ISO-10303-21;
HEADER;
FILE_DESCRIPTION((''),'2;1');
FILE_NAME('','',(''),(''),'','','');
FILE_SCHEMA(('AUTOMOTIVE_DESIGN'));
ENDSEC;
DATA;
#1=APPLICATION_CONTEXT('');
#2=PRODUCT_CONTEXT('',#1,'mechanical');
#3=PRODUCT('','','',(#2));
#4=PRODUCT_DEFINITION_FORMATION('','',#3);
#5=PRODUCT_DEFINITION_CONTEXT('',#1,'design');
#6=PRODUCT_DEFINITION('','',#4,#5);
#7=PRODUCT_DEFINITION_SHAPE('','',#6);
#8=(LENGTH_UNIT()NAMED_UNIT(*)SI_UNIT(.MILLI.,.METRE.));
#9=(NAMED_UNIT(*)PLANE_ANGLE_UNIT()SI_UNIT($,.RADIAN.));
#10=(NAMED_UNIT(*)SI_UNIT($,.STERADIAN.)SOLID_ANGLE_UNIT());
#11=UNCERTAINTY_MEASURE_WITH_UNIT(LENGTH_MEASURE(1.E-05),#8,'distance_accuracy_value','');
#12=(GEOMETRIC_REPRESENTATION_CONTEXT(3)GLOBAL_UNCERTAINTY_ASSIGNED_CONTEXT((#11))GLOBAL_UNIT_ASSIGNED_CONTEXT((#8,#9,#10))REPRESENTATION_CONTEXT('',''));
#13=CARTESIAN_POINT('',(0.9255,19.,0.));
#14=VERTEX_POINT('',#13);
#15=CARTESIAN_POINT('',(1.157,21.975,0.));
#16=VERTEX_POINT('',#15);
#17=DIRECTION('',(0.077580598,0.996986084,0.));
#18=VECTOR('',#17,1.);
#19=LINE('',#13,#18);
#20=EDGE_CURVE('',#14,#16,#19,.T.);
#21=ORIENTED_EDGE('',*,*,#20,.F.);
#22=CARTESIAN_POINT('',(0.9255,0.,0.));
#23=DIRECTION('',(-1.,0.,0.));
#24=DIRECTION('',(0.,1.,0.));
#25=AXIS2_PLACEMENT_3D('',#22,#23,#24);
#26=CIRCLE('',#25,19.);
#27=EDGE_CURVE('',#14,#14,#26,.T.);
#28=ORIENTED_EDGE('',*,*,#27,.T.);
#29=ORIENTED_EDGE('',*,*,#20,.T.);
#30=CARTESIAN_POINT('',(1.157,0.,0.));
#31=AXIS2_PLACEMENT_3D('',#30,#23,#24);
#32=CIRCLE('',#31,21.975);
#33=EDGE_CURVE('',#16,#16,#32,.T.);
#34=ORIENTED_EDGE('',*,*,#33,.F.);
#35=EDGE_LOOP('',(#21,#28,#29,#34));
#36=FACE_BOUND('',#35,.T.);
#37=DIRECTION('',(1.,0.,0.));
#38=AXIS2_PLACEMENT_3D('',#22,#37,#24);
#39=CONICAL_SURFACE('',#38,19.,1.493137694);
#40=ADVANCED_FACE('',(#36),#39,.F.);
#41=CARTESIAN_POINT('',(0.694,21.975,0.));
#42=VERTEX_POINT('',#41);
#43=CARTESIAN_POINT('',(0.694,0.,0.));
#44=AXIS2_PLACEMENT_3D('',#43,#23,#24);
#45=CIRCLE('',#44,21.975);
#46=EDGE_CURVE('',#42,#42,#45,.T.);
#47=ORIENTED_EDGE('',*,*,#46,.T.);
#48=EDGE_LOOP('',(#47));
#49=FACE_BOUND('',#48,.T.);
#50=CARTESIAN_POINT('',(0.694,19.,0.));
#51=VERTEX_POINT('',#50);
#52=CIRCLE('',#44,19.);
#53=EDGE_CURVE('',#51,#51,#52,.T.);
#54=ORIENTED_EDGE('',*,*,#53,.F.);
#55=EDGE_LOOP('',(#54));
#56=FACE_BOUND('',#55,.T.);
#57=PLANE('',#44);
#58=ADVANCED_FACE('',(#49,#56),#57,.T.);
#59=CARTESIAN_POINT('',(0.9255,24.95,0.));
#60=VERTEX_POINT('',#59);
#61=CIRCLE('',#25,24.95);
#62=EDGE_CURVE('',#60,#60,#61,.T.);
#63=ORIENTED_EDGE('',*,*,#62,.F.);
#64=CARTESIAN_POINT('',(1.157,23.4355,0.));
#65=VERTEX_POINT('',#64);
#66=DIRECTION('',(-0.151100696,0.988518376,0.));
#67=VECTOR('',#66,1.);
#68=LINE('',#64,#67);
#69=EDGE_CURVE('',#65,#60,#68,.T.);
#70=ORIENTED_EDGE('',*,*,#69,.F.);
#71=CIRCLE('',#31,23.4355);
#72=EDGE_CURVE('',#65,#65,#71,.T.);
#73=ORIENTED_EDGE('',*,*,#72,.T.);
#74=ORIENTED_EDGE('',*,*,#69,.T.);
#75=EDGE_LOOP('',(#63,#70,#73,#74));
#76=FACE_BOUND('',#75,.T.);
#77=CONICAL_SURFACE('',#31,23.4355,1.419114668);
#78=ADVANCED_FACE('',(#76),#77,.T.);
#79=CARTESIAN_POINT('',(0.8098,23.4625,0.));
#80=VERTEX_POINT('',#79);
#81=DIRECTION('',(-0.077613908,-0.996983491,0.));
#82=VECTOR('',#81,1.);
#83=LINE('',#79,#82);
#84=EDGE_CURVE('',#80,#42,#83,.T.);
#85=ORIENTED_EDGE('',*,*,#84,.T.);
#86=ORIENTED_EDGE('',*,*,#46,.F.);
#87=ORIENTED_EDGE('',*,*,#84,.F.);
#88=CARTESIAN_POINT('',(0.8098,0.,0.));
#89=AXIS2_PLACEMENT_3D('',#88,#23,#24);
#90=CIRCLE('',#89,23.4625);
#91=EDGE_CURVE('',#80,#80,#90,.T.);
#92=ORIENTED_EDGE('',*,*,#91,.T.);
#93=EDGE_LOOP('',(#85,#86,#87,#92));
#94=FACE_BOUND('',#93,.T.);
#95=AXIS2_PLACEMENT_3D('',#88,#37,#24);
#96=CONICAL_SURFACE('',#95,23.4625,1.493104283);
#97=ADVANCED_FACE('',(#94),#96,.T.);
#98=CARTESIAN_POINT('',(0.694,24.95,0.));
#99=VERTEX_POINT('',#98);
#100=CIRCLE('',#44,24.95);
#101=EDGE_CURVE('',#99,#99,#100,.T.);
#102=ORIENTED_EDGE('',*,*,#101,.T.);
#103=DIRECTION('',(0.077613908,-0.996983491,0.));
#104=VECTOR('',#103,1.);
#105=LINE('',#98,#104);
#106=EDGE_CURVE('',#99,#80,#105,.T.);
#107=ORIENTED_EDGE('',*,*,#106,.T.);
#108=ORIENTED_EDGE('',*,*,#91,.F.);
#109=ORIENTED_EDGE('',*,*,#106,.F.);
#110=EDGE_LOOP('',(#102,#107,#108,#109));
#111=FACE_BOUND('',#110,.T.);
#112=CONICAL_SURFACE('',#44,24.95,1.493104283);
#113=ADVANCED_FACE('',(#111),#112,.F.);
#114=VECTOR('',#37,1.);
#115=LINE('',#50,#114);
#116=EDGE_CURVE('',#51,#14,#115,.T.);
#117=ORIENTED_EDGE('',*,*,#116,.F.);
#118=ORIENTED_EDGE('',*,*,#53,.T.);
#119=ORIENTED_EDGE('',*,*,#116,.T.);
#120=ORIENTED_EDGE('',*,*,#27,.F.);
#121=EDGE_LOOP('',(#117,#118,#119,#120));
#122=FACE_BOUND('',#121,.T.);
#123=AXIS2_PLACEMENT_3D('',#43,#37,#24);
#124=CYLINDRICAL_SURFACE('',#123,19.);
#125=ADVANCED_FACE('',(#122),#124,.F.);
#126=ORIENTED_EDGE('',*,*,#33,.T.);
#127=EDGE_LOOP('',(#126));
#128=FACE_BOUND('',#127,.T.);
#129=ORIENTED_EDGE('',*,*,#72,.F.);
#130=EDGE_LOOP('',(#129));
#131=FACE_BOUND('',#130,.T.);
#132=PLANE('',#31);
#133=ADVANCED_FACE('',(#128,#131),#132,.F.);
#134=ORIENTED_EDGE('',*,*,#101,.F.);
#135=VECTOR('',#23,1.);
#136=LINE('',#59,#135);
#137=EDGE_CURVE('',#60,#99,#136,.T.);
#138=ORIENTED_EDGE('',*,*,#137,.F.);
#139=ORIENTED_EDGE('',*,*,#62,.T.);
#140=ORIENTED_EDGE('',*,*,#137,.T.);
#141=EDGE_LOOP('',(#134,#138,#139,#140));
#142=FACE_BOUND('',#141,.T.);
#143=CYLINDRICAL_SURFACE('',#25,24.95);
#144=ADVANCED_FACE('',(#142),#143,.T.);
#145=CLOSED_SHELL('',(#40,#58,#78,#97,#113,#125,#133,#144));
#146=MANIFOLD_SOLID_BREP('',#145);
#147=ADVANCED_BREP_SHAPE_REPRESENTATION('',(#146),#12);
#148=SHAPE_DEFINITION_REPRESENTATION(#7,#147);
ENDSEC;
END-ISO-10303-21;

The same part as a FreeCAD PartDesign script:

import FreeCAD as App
import Part
import Sketcher

V = App.Vector
Q = App.Units.Quantity

doc = App.newDocument("Part")
body = doc.addObject("PartDesign::Body", "Body")

# Sketch on XY plane
sketch1 = body.newObject("Sketcher::SketchObject", "Sketch")
sketch1.AttachmentSupport = (doc.getObject("XY_Plane"), [""])
sketch1.MapMode = "FlatFace"
sketch1.addGeometry(Part.LineSegment(V(0.694, 21.975, 0), V(0.694, 19, 0)), False)
sketch1.addGeometry(Part.LineSegment(V(0.694, 19, 0), V(0.9255, 19, 0)), False)
sketch1.addGeometry(Part.LineSegment(V(0.9255, 19, 0), V(1.157, 21.975, 0)), False)
sketch1.addGeometry(Part.LineSegment(V(1.157, 21.975, 0), V(1.157, 23.4355, 0)), False)
sketch1.addGeometry(Part.LineSegment(V(1.157, 23.4355, 0), V(0.9255, 24.95, 0)), False)
sketch1.addGeometry(Part.LineSegment(V(0.9255, 24.95, 0), V(0.694, 24.95, 0)), False)
sketch1.addGeometry(Part.LineSegment(V(0.694, 24.95, 0), V(0.8098, 23.4625, 0)), False)
sketch1.addGeometry(Part.LineSegment(V(0.8098, 23.4625, 0), V(0.694, 21.975, 0)), False)
sketch1.addConstraint(Sketcher.Constraint("Coincident", 0, 2, 1, 1))
sketch1.addConstraint(Sketcher.Constraint("Coincident", 1, 2, 2, 1))
sketch1.addConstraint(Sketcher.Constraint("Coincident", 2, 2, 3, 1))
sketch1.addConstraint(Sketcher.Constraint("Coincident", 3, 2, 4, 1))
sketch1.addConstraint(Sketcher.Constraint("Coincident", 4, 2, 5, 1))
sketch1.addConstraint(Sketcher.Constraint("Coincident", 5, 2, 6, 1))
sketch1.addConstraint(Sketcher.Constraint("Coincident", 6, 2, 7, 1))
sketch1.addConstraint(Sketcher.Constraint("Coincident", 7, 2, 0, 1))
sketch1.addConstraint(Sketcher.Constraint("Vertical", 0))
sketch1.addConstraint(Sketcher.Constraint("Horizontal", 1))
sketch1.addConstraint(Sketcher.Constraint("Vertical", 3))
sketch1.addConstraint(Sketcher.Constraint("Horizontal", 5))
sketch1.addConstraint(Sketcher.Constraint("Parallel", 2, 7))
sketch1.addConstraint(Sketcher.Constraint("Horizontal", 2, 2, 7, 2))
sketch1.addConstraint(Sketcher.Constraint("Vertical", 1, 2, 4, 2))
sketch1.addConstraint(Sketcher.Constraint("Vertical", 0, 2, 5, 2))
sketch1.addConstraint(Sketcher.Constraint("Equal", 6, 7))
sketch1.addConstraint(Sketcher.Constraint("DistanceY", -1, 1, 0, 2, 19.0))
sketch1.addConstraint(Sketcher.Constraint("Angle", 2, Q("85.5505 deg")))
sketch1.addConstraint(Sketcher.Constraint("Angle", 4, Q("98.6907 deg")))
sketch1.addConstraint(Sketcher.Constraint("DistanceY", 0, 2, 0, 1, 2.975))
sketch1.addConstraint(Sketcher.Constraint("DistanceY", -1, 1, 4, 2, 24.95))
sketch1.addConstraint(Sketcher.Constraint("DistanceX", 1, 1, 1, 2, 0.2315))
sketch1.addConstraint(Sketcher.Constraint("DistanceX", -1, 1, 0, 2, 0.694))
revolution = body.newObject("PartDesign::Revolution", "Revolution")
revolution.Profile = sketch1
revolution.ReferenceAxis = (sketch1, ["H_Axis"])
revolution.Angle = 360

doc.recompute()
